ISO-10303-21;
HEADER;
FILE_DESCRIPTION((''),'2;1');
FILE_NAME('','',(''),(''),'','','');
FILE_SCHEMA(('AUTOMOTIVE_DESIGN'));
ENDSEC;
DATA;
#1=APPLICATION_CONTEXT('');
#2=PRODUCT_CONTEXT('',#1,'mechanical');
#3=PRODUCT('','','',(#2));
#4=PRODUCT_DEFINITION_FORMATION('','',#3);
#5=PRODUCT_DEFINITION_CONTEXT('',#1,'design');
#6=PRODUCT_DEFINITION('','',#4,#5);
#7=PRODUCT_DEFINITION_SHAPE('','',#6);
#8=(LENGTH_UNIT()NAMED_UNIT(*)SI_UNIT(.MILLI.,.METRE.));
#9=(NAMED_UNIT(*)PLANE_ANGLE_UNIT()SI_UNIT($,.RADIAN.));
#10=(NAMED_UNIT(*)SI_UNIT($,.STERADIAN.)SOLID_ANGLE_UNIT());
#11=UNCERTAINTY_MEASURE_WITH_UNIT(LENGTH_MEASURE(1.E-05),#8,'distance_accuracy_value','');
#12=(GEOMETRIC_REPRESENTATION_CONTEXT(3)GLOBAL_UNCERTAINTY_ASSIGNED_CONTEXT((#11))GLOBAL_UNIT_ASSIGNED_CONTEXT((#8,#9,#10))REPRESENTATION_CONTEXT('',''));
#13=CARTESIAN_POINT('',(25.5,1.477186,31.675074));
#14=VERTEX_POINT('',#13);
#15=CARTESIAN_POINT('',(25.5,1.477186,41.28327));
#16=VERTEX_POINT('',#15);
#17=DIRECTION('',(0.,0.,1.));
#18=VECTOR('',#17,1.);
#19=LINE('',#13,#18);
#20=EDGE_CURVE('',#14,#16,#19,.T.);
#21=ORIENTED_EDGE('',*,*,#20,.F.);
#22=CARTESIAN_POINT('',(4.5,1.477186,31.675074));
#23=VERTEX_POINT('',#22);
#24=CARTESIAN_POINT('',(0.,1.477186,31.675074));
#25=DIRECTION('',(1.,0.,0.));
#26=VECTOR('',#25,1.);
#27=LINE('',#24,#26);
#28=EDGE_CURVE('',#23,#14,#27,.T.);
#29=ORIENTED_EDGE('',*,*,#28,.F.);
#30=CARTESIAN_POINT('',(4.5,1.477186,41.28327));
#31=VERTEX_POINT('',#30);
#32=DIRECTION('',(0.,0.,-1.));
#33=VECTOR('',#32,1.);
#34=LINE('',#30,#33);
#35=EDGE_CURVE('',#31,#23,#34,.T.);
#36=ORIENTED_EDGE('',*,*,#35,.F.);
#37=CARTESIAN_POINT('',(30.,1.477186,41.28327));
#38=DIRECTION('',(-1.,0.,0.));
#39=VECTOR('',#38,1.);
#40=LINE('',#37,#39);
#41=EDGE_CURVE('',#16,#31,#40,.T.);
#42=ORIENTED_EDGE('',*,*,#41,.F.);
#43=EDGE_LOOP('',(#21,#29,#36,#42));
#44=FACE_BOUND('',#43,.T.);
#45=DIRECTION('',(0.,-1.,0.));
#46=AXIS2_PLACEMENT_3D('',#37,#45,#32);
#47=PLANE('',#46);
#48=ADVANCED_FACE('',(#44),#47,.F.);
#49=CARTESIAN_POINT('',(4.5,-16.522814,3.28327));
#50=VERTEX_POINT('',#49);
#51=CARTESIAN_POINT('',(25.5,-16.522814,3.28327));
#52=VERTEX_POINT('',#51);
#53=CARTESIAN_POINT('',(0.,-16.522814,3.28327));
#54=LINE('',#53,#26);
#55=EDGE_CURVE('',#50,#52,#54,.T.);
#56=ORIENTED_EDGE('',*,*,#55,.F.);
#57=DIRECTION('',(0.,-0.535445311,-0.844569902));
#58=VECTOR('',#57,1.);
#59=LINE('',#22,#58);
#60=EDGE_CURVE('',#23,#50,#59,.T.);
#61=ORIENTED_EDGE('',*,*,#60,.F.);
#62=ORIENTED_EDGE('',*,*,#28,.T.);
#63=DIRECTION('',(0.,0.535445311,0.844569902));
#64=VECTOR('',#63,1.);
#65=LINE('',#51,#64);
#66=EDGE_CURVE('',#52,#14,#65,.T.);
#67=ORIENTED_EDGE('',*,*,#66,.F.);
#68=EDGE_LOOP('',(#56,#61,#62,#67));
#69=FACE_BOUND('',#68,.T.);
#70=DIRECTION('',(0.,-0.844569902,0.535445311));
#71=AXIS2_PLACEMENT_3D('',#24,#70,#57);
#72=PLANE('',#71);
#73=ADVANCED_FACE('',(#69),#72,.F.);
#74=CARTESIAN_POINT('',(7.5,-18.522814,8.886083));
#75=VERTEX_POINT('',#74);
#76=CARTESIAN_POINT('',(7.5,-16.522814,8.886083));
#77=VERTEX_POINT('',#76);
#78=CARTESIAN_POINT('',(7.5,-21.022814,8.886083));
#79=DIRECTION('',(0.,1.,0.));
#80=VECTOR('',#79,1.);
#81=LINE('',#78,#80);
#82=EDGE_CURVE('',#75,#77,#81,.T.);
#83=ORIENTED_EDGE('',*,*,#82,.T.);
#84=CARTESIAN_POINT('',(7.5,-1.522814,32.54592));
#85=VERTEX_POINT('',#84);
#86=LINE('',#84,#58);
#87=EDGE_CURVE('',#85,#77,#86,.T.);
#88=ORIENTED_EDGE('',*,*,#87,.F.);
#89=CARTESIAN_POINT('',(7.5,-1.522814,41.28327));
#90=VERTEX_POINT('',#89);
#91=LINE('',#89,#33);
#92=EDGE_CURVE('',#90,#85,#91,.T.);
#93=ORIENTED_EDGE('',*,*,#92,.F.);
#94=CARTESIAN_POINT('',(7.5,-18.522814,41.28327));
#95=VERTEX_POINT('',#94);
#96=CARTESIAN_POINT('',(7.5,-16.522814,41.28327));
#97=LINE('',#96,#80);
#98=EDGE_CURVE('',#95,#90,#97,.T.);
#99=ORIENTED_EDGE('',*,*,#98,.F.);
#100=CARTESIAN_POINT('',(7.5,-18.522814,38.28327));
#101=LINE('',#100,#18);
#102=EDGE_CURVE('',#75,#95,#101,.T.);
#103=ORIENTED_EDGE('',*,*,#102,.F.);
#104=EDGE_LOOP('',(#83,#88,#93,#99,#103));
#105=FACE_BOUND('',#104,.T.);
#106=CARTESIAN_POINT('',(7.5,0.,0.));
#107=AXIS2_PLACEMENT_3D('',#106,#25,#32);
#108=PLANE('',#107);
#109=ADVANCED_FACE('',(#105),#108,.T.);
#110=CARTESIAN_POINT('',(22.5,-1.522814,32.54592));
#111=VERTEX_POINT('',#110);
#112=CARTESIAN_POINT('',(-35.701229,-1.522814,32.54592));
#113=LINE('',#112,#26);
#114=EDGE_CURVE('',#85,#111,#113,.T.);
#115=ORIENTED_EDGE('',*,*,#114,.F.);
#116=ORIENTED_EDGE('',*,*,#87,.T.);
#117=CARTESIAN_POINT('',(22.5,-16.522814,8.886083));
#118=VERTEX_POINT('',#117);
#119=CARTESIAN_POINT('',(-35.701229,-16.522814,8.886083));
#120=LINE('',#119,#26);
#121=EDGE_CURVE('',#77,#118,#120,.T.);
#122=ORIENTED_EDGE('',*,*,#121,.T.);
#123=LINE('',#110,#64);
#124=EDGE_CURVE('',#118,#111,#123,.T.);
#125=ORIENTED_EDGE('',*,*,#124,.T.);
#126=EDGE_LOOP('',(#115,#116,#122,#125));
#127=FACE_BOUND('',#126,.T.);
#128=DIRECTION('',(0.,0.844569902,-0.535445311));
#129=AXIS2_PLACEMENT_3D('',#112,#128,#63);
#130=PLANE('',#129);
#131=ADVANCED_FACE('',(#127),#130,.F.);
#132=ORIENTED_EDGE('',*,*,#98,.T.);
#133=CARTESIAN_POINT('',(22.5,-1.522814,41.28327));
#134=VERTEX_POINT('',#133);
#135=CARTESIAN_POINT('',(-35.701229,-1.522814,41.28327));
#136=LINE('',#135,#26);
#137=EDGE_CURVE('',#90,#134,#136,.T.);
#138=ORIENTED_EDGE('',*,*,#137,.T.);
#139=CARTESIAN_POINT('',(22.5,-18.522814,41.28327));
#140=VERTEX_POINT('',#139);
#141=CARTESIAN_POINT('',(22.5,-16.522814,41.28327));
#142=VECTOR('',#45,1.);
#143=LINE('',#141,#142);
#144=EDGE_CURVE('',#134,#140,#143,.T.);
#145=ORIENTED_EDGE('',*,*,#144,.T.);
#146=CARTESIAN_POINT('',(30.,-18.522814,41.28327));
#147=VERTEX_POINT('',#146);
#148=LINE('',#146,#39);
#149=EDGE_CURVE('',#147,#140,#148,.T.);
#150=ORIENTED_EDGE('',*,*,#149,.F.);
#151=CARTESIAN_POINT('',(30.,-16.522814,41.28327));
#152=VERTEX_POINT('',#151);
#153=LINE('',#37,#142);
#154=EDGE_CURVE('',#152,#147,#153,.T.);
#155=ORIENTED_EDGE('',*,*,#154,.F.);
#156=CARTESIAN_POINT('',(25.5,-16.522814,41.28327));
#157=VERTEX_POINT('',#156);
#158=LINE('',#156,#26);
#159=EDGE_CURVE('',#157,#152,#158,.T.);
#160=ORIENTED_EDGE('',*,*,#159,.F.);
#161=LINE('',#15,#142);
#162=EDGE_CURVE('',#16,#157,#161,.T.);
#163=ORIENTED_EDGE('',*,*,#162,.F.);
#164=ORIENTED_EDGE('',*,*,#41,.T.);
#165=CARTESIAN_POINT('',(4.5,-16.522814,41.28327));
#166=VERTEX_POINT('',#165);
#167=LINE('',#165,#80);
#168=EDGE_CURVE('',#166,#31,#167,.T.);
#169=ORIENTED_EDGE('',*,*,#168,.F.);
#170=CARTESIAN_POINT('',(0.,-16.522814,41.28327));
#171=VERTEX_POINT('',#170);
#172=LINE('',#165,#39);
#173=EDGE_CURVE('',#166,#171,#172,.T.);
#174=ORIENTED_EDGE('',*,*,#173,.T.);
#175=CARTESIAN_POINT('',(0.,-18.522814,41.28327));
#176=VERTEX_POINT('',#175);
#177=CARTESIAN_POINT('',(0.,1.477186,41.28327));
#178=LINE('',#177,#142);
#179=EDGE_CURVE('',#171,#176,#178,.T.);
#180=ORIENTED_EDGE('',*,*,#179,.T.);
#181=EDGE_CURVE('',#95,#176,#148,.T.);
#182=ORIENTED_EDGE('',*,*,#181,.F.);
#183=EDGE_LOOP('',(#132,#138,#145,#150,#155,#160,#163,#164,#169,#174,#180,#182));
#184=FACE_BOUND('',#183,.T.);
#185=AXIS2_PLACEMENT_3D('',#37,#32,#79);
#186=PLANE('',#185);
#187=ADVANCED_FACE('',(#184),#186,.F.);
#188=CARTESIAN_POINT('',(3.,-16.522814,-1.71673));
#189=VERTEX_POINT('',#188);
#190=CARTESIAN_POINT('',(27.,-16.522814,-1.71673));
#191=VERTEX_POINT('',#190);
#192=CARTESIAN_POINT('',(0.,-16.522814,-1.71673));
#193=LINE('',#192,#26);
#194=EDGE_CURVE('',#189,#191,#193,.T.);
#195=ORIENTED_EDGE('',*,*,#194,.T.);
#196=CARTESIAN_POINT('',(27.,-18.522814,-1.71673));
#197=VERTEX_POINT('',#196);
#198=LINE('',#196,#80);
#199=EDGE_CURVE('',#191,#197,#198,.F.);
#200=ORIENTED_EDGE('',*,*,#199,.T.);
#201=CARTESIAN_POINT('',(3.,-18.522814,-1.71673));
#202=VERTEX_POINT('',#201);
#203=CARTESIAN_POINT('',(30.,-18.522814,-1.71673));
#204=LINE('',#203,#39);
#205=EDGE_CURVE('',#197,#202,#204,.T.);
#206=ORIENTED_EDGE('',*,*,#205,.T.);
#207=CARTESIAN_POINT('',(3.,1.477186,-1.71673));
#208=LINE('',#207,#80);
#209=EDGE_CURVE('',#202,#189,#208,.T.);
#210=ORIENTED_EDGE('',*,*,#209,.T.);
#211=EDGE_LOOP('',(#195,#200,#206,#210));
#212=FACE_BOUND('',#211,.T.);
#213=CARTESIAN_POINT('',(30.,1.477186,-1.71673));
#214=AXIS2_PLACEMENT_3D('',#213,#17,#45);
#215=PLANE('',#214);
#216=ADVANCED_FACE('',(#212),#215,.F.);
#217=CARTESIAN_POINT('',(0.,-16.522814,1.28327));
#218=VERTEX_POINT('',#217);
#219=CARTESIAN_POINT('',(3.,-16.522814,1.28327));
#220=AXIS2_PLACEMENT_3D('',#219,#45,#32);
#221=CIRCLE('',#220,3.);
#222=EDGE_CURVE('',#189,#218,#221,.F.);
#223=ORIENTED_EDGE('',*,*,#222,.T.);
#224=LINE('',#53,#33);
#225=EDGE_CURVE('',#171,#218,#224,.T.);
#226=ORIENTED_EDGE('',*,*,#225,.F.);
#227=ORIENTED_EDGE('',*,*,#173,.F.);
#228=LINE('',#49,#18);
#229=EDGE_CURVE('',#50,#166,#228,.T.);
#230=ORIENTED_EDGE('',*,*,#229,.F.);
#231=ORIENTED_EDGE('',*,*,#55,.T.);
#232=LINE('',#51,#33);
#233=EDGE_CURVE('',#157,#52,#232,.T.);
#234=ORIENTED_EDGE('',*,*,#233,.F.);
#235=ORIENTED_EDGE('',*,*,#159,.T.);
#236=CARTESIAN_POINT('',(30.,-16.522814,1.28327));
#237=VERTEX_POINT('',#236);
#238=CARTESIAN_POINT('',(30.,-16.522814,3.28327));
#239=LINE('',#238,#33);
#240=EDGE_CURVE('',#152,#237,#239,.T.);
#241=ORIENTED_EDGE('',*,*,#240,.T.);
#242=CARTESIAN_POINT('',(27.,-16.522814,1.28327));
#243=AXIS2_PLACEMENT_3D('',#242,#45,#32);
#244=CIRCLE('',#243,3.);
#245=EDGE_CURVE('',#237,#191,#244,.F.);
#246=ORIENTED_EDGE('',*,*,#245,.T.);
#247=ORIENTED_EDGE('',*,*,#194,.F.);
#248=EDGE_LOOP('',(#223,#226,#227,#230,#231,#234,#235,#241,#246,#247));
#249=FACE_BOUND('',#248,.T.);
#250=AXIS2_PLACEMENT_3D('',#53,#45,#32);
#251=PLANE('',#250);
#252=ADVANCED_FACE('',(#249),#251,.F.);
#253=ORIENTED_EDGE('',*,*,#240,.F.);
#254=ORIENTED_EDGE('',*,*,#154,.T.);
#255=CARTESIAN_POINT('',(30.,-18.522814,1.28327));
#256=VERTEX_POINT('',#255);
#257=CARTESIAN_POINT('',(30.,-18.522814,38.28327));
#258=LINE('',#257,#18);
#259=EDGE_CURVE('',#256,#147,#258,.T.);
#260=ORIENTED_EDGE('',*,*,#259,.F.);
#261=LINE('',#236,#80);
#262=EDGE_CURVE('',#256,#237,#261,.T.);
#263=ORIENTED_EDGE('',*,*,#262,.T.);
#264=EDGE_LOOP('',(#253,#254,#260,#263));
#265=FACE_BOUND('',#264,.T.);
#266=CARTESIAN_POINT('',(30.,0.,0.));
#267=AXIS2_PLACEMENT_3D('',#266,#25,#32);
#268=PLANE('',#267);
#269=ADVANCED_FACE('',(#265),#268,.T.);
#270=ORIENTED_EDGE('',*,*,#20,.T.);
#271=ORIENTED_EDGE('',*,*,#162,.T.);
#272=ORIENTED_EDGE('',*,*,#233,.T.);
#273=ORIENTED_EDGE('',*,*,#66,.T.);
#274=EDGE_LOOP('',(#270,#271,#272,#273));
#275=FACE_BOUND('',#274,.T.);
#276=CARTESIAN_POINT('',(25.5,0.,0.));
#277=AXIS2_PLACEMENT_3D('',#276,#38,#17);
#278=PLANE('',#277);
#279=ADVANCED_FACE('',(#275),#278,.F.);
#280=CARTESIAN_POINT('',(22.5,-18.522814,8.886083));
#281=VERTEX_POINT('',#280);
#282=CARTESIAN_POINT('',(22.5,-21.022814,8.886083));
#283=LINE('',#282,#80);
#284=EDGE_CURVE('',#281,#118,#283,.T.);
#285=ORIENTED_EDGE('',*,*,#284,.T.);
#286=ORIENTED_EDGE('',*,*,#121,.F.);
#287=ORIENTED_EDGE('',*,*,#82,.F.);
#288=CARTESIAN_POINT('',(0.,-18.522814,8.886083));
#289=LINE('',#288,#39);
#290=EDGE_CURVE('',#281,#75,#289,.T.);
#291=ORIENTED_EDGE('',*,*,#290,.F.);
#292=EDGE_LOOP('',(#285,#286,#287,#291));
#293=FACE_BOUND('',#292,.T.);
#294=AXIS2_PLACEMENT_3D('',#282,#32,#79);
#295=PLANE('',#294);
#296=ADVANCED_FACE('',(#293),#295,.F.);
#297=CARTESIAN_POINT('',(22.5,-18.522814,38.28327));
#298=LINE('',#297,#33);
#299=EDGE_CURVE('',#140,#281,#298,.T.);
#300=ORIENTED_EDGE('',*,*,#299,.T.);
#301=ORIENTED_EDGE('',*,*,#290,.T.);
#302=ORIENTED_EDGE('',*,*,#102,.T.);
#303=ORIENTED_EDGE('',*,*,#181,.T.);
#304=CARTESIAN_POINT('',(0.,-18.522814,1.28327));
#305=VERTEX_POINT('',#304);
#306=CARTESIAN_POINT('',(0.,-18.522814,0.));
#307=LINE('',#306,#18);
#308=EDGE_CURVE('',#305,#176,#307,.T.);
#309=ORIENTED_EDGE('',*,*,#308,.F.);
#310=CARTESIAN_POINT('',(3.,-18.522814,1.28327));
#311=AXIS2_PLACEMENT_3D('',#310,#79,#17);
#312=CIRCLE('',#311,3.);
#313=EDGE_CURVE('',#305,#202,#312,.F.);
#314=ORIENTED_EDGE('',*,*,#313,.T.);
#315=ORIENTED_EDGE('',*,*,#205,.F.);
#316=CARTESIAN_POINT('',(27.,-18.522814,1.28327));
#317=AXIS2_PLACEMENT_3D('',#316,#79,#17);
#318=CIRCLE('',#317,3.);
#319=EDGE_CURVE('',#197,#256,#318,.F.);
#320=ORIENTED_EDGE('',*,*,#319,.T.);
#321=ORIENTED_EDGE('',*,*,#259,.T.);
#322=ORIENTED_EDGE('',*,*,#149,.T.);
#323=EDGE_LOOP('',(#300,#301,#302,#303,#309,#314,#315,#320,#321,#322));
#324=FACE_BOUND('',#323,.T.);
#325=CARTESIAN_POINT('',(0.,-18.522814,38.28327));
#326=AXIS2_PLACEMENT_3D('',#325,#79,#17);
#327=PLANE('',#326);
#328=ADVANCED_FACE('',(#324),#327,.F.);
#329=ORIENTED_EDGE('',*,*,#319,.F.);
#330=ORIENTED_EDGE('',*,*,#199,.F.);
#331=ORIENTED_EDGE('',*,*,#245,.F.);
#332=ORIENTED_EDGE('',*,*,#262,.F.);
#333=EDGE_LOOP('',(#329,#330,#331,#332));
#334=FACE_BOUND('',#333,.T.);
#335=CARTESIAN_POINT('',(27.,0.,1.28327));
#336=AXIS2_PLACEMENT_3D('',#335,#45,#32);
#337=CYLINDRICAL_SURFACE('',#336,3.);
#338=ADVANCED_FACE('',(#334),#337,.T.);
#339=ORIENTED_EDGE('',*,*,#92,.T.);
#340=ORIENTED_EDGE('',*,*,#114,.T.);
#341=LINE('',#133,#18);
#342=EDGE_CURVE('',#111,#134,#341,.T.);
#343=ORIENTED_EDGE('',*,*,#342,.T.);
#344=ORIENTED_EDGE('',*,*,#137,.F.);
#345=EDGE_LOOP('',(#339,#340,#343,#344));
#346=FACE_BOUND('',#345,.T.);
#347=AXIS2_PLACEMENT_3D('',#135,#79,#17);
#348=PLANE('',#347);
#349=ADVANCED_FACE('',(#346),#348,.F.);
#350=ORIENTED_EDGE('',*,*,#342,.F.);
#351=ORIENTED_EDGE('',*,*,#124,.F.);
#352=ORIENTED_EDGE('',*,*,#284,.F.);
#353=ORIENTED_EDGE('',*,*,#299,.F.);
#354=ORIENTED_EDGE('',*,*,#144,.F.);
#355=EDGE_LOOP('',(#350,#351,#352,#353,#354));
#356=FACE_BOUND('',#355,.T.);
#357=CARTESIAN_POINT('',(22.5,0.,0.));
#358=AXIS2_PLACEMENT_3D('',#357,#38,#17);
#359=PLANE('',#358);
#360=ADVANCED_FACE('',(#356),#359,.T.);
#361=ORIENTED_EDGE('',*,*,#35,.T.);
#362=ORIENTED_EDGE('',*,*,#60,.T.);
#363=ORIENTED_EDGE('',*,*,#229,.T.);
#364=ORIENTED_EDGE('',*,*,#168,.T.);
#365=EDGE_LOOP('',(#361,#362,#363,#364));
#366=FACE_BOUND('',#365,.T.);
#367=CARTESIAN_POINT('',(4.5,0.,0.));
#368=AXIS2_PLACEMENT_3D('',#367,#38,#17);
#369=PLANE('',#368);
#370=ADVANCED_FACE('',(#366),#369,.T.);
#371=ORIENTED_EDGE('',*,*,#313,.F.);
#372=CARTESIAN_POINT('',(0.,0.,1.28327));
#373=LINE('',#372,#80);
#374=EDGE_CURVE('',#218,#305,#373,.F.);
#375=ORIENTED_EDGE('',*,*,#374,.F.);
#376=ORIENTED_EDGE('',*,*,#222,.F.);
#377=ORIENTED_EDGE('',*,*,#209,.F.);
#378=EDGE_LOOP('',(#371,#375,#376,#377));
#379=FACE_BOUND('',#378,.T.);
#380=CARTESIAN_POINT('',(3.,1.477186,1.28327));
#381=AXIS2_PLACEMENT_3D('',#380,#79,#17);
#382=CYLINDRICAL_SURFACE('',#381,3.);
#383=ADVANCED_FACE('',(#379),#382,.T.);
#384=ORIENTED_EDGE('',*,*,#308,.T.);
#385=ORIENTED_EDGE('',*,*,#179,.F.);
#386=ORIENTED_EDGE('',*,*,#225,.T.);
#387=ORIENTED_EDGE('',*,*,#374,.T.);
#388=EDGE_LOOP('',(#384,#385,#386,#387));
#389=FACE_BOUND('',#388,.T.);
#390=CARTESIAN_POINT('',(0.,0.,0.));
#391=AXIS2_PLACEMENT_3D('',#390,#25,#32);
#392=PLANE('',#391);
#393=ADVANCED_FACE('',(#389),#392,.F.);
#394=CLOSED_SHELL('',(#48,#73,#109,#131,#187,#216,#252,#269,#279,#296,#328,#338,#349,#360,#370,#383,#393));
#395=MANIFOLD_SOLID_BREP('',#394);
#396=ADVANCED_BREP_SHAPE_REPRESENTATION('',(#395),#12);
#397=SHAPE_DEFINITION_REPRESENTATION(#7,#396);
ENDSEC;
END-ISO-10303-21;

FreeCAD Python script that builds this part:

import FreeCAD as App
import Part
import Sketcher
from FreeCAD import Vector
Q = App.Units.Quantity


def edges_at(feature, points):
    """Names of the edges that pass closest to the given points."""
    edges = feature.Shape.Edges
    near = lambda p: min(range(len(edges)), key=lambda i: edges[i].distToShape(Part.Vertex(*p))[0])
    return sorted({f"Edge{near(p) + 1}" for p in points})


def add_polygon(sketch, points):
    """Adds a closed chain of lines whose ends are joined by coincident constraints."""
    first, n = sketch.GeometryCount, len(points)
    for a, b in zip(points, points[1:] + points[:1]):
        sketch.addGeometry(Part.LineSegment(App.Vector(*a, 0), App.Vector(*b, 0)), False)
    for i in range(n):
        sketch.addConstraint(Sketcher.Constraint("Coincident", first + i, 2, first + (i + 1) % n, 1))

doc = App.newDocument("Part")
body = doc.addObject("PartDesign::Body", "Body")

sketch1 = doc.addObject("Sketcher::SketchObject", "Sketch")
body.addObject(sketch1)
sketch1.AttachmentSupport = (doc.YZ_Plane, [""])
sketch1.MapMode = "FlatFace"
add_polygon(sketch1, [(1.477186, 41.28327), (-28.522814, 41.28327), (-28.522814, -1.71673), (1.477186, -1.71673)])
sketch1.addConstraint([
    Sketcher.Constraint("Horizontal", 0),
    Sketcher.Constraint("Vertical", 1),
    Sketcher.Constraint("Horizontal", 2),
    Sketcher.Constraint("Vertical", 3),
    Sketcher.Constraint("DistanceX", 0, 2, 0, 1, Q("30 mm")),
    Sketcher.Constraint("DistanceY", 1, 2, 1, 1, Q("43 mm")),
    Sketcher.Constraint("DistanceY", -1, 1, 0, 2, Q("41.28327 mm")),
    Sketcher.Constraint("DistanceX", 0, 2, -1, 1, Q("28.522814 mm")),
])
pad1 = doc.addObject("PartDesign::Pad", "Pad")
body.addObject(pad1)
pad1.Profile = sketch1
pad1.Length = 30

sketch2 = doc.addObject("Sketcher::SketchObject", "Sketch001")
body.addObject(sketch2)
sketch2.AttachmentSupport = (doc.YZ_Plane, [""])
sketch2.MapMode = "FlatFace"
sketch2.AttachmentOffset = App.Placement(Vector(0, 0, 30), App.Rotation())
add_polygon(sketch2, [(-18.522814, 38.28327), (-44.081309, 38.28327), (-44.081309, -4.246138), (-18.522814, -4.246138)])
add_polygon(sketch2, [(1.477186, 31.675074), (-16.522814, 3.28327), (-16.522814, -1.71673), (1.477186, -1.71673)])
sketch2.addConstraint([
    Sketcher.Constraint("Horizontal", 0),
    Sketcher.Constraint("Vertical", 1),
    Sketcher.Constraint("Horizontal", 2),
    Sketcher.Constraint("Vertical", 3),
    Sketcher.Constraint("Vertical", 5),
    Sketcher.Constraint("Horizontal", 6),
    Sketcher.Constraint("Vertical", 7),
    Sketcher.Constraint("DistanceX", 6, 1, 6, 2, Q("18 mm")),
    Sketcher.Constraint("DistanceY", 5, 2, 5, 1, Q("5 mm")),
    Sketcher.Constraint("DistanceX", 2, 2, 4, 2, Q("2 mm")),
    Sketcher.Constraint("DistanceY", 4, 2, 3, 2, Q("35 mm")),
    Sketcher.Constraint("Distance", 4, Q("33.616879 mm")),
    Sketcher.Constraint("DistanceX", 0, 2, 0, 1, Q("25.558496 mm")),
    Sketcher.Constraint("DistanceY", 1, 2, 1, 1, Q("42.529408 mm")),
    Sketcher.Constraint("DistanceX", 0, 2, -1, 1, Q("44.081309 mm")),
    Sketcher.Constraint("DistanceY", -1, 1, 0, 2, Q("38.28327 mm")),
])
pocket1 = doc.addObject("PartDesign::Pocket", "Pocket")
body.addObject(pocket1)
pocket1.Profile = sketch2
pocket1.Length = 30

sketch3 = doc.addObject("Sketcher::SketchObject", "Sketch002")
body.addObject(sketch3)
sketch3.AttachmentSupport = (doc.YZ_Plane, [""])
sketch3.MapMode = "FlatFace"
sketch3.AttachmentOffset = App.Placement(Vector(0, 0, 22.5), App.Rotation())
add_polygon(sketch3, [(-1.522814, 32.54592), (-1.522814, 41.28327), (-16.522814, 41.28327), (-16.522814, 8.886083)])
sketch3.addConstraint([
    Sketcher.Constraint("Vertical", 0),
    Sketcher.Constraint("Horizontal", 1),
    Sketcher.Constraint("Vertical", 2),
    Sketcher.Constraint("DistanceX", 1, 2, 1, 1, Q("15 mm")),
    Sketcher.Constraint("DistanceY", 0, 1, 0, 2, Q("8.73735 mm")),
    Sketcher.Constraint("DistanceY", 2, 2, 2, 1, Q("32.397187 mm")),
    Sketcher.Constraint("DistanceY", -1, 1, 0, 2, Q("41.28327 mm")),
    Sketcher.Constraint("DistanceX", 0, 2, -1, 1, Q("1.522814 mm")),
])
pocket2 = doc.addObject("PartDesign::Pocket", "Pocket001")
body.addObject(pocket2)
pocket2.Profile = sketch3
pocket2.Length = 15

sketch4 = doc.addObject("Sketcher::SketchObject", "Sketch003")
body.addObject(sketch4)
sketch4.AttachmentSupport = (doc.YZ_Plane, [""])
sketch4.MapMode = "FlatFace"
sketch4.AttachmentOffset = App.Placement(Vector(0, 0, 30), App.Rotation())
add_polygon(sketch4, [(-16.522814, 41.28327), (-16.522814, 3.28327), (1.477186, 31.675074), (1.477186, 41.28327)])
sketch4.addConstraint([
    Sketcher.Constraint("Vertical", 0),
    Sketcher.Constraint("Vertical", 2),
    Sketcher.Constraint("Horizontal", 3),
    Sketcher.Constraint("DistanceX", 3, 2, 3, 1, Q("18 mm")),
    Sketcher.Constraint("DistanceY", 0, 2, 0, 1, Q("38 mm")),
    Sketcher.Constraint("Distance", 1, Q("33.616879 mm")),
    Sketcher.Constraint("DistanceY", -1, 1, 0, 2, Q("3.28327 mm")),
    Sketcher.Constraint("DistanceX", 0, 2, -1, 1, Q("16.522814 mm")),
])
pocket3 = doc.addObject("PartDesign::Pocket", "Pocket002")
body.addObject(pocket3)
pocket3.Profile = sketch4
pocket3.Length = 4.5

sketch5 = doc.addObject("Sketcher::SketchObject", "Sketch004")
body.addObject(sketch5)
sketch5.AttachmentSupport = (doc.YZ_Plane, [""])
sketch5.MapMode = "FlatFace"
add_polygon(sketch5, [(-16.522814, 3.28327), (-16.522814, 41.28327), (1.477186, 41.28327), (1.477186, 31.675074)])
sketch5.addConstraint([
    Sketcher.Constraint("Vertical", 0),
    Sketcher.Constraint("Horizontal", 1),
    Sketcher.Constraint("Vertical", 2),
    Sketcher.Constraint("DistanceX", 1, 1, 1, 2, Q("18 mm")),
    Sketcher.Constraint("DistanceY", 0, 1, 0, 2, Q("38 mm")),
    Sketcher.Constraint("Distance", 3, Q("33.616879 mm")),
    Sketcher.Constraint("DistanceY", -1, 1, 0, 2, Q("41.28327 mm")),
    Sketcher.Constraint("DistanceX", 0, 2, -1, 1, Q("16.522814 mm")),
])
pocket4 = doc.addObject("PartDesign::Pocket", "Pocket003")
body.addObject(pocket4)
pocket4.Profile = sketch5
pocket4.Length = 4.5
pocket4.Reversed = True
doc.recompute()

fillet = doc.addObject("PartDesign::Fillet", "Fillet")
body.addObject(fillet)
fillet.Base = (pocket4, edges_at(pocket4, [(0, -17.523, -1.717), (30, -17.523, -1.717)]))
fillet.Radius = 3

sketch6 = doc.addObject("Sketcher::SketchObject", "Sketch005")
body.addObject(sketch6)
sketch6.AttachmentSupport = (doc.XZ_Plane, [""])
sketch6.MapMode = "FlatFace"
sketch6.AttachmentOffset = App.Placement(Vector(0, 0, 16.522814), App.Rotation())
add_polygon(sketch6, [(7.5, 8.886083), (7.5, 41.28327), (22.5, 41.28327), (22.5, 8.886083)])
sketch6.addConstraint([
    Sketcher.Constraint("Vertical", 0),
    Sketcher.Constraint("Horizontal", 1),
    Sketcher.Constraint("Vertical", 2),
    Sketcher.Constraint("Horizontal", 3),
    Sketcher.Constraint("DistanceX", 1, 1, 1, 2, Q("15 mm")),
    Sketcher.Constraint("DistanceX", -1, 1, 0, 2, Q("7.5 mm")),
    Sketcher.Constraint("DistanceY", 0, 1, 0, 2, Q("32.397187 mm")),
    Sketcher.Constraint("DistanceY", -1, 1, 0, 2, Q("41.28327 mm")),
])
pocket5 = doc.addObject("PartDesign::Pocket", "Pocket004")
body.addObject(pocket5)
pocket5.Profile = sketch6
pocket5.Length = 4.5
pocket5.Reversed = True

sketch7 = doc.addObject("Sketcher::SketchObject", "Sketch006")
body.addObject(sketch7)
sketch7.AttachmentSupport = (doc.XZ_Plane, [""])
sketch7.MapMode = "FlatFace"
sketch7.AttachmentOffset = App.Placement(Vector(0, 0, 18.522814), App.Rotation())
add_polygon(sketch7, [(-42.525954, 101.494727), (-42.525954, 22.684592), (77.757243, 22.684592), (77.757243, 101.494727)])
sketch7.addConstraint([
    Sketcher.Constraint("Vertical", 0),
    Sketcher.Constraint("Horizontal", 1),
    Sketcher.Constraint("Vertical", 2),
    Sketcher.Constraint("Horizontal", 3),
    Sketcher.Constraint("DistanceX", 1, 1, 1, 2, Q("120.283196 mm")),
    Sketcher.Constraint("DistanceY", 0, 2, 0, 1, Q("78.810135 mm")),
    Sketcher.Constraint("DistanceY", -1, 1, 0, 2, Q("22.684592 mm")),
    Sketcher.Constraint("DistanceX", 0, 2, -1, 1, Q("42.525954 mm")),
])
pocket6 = doc.addObject("PartDesign::Pocket", "Pocket005")
body.addObject(pocket6)
pocket6.Profile = sketch7
pocket6.Length = 22.5
pocket6.Reversed = True

doc.recompute()
